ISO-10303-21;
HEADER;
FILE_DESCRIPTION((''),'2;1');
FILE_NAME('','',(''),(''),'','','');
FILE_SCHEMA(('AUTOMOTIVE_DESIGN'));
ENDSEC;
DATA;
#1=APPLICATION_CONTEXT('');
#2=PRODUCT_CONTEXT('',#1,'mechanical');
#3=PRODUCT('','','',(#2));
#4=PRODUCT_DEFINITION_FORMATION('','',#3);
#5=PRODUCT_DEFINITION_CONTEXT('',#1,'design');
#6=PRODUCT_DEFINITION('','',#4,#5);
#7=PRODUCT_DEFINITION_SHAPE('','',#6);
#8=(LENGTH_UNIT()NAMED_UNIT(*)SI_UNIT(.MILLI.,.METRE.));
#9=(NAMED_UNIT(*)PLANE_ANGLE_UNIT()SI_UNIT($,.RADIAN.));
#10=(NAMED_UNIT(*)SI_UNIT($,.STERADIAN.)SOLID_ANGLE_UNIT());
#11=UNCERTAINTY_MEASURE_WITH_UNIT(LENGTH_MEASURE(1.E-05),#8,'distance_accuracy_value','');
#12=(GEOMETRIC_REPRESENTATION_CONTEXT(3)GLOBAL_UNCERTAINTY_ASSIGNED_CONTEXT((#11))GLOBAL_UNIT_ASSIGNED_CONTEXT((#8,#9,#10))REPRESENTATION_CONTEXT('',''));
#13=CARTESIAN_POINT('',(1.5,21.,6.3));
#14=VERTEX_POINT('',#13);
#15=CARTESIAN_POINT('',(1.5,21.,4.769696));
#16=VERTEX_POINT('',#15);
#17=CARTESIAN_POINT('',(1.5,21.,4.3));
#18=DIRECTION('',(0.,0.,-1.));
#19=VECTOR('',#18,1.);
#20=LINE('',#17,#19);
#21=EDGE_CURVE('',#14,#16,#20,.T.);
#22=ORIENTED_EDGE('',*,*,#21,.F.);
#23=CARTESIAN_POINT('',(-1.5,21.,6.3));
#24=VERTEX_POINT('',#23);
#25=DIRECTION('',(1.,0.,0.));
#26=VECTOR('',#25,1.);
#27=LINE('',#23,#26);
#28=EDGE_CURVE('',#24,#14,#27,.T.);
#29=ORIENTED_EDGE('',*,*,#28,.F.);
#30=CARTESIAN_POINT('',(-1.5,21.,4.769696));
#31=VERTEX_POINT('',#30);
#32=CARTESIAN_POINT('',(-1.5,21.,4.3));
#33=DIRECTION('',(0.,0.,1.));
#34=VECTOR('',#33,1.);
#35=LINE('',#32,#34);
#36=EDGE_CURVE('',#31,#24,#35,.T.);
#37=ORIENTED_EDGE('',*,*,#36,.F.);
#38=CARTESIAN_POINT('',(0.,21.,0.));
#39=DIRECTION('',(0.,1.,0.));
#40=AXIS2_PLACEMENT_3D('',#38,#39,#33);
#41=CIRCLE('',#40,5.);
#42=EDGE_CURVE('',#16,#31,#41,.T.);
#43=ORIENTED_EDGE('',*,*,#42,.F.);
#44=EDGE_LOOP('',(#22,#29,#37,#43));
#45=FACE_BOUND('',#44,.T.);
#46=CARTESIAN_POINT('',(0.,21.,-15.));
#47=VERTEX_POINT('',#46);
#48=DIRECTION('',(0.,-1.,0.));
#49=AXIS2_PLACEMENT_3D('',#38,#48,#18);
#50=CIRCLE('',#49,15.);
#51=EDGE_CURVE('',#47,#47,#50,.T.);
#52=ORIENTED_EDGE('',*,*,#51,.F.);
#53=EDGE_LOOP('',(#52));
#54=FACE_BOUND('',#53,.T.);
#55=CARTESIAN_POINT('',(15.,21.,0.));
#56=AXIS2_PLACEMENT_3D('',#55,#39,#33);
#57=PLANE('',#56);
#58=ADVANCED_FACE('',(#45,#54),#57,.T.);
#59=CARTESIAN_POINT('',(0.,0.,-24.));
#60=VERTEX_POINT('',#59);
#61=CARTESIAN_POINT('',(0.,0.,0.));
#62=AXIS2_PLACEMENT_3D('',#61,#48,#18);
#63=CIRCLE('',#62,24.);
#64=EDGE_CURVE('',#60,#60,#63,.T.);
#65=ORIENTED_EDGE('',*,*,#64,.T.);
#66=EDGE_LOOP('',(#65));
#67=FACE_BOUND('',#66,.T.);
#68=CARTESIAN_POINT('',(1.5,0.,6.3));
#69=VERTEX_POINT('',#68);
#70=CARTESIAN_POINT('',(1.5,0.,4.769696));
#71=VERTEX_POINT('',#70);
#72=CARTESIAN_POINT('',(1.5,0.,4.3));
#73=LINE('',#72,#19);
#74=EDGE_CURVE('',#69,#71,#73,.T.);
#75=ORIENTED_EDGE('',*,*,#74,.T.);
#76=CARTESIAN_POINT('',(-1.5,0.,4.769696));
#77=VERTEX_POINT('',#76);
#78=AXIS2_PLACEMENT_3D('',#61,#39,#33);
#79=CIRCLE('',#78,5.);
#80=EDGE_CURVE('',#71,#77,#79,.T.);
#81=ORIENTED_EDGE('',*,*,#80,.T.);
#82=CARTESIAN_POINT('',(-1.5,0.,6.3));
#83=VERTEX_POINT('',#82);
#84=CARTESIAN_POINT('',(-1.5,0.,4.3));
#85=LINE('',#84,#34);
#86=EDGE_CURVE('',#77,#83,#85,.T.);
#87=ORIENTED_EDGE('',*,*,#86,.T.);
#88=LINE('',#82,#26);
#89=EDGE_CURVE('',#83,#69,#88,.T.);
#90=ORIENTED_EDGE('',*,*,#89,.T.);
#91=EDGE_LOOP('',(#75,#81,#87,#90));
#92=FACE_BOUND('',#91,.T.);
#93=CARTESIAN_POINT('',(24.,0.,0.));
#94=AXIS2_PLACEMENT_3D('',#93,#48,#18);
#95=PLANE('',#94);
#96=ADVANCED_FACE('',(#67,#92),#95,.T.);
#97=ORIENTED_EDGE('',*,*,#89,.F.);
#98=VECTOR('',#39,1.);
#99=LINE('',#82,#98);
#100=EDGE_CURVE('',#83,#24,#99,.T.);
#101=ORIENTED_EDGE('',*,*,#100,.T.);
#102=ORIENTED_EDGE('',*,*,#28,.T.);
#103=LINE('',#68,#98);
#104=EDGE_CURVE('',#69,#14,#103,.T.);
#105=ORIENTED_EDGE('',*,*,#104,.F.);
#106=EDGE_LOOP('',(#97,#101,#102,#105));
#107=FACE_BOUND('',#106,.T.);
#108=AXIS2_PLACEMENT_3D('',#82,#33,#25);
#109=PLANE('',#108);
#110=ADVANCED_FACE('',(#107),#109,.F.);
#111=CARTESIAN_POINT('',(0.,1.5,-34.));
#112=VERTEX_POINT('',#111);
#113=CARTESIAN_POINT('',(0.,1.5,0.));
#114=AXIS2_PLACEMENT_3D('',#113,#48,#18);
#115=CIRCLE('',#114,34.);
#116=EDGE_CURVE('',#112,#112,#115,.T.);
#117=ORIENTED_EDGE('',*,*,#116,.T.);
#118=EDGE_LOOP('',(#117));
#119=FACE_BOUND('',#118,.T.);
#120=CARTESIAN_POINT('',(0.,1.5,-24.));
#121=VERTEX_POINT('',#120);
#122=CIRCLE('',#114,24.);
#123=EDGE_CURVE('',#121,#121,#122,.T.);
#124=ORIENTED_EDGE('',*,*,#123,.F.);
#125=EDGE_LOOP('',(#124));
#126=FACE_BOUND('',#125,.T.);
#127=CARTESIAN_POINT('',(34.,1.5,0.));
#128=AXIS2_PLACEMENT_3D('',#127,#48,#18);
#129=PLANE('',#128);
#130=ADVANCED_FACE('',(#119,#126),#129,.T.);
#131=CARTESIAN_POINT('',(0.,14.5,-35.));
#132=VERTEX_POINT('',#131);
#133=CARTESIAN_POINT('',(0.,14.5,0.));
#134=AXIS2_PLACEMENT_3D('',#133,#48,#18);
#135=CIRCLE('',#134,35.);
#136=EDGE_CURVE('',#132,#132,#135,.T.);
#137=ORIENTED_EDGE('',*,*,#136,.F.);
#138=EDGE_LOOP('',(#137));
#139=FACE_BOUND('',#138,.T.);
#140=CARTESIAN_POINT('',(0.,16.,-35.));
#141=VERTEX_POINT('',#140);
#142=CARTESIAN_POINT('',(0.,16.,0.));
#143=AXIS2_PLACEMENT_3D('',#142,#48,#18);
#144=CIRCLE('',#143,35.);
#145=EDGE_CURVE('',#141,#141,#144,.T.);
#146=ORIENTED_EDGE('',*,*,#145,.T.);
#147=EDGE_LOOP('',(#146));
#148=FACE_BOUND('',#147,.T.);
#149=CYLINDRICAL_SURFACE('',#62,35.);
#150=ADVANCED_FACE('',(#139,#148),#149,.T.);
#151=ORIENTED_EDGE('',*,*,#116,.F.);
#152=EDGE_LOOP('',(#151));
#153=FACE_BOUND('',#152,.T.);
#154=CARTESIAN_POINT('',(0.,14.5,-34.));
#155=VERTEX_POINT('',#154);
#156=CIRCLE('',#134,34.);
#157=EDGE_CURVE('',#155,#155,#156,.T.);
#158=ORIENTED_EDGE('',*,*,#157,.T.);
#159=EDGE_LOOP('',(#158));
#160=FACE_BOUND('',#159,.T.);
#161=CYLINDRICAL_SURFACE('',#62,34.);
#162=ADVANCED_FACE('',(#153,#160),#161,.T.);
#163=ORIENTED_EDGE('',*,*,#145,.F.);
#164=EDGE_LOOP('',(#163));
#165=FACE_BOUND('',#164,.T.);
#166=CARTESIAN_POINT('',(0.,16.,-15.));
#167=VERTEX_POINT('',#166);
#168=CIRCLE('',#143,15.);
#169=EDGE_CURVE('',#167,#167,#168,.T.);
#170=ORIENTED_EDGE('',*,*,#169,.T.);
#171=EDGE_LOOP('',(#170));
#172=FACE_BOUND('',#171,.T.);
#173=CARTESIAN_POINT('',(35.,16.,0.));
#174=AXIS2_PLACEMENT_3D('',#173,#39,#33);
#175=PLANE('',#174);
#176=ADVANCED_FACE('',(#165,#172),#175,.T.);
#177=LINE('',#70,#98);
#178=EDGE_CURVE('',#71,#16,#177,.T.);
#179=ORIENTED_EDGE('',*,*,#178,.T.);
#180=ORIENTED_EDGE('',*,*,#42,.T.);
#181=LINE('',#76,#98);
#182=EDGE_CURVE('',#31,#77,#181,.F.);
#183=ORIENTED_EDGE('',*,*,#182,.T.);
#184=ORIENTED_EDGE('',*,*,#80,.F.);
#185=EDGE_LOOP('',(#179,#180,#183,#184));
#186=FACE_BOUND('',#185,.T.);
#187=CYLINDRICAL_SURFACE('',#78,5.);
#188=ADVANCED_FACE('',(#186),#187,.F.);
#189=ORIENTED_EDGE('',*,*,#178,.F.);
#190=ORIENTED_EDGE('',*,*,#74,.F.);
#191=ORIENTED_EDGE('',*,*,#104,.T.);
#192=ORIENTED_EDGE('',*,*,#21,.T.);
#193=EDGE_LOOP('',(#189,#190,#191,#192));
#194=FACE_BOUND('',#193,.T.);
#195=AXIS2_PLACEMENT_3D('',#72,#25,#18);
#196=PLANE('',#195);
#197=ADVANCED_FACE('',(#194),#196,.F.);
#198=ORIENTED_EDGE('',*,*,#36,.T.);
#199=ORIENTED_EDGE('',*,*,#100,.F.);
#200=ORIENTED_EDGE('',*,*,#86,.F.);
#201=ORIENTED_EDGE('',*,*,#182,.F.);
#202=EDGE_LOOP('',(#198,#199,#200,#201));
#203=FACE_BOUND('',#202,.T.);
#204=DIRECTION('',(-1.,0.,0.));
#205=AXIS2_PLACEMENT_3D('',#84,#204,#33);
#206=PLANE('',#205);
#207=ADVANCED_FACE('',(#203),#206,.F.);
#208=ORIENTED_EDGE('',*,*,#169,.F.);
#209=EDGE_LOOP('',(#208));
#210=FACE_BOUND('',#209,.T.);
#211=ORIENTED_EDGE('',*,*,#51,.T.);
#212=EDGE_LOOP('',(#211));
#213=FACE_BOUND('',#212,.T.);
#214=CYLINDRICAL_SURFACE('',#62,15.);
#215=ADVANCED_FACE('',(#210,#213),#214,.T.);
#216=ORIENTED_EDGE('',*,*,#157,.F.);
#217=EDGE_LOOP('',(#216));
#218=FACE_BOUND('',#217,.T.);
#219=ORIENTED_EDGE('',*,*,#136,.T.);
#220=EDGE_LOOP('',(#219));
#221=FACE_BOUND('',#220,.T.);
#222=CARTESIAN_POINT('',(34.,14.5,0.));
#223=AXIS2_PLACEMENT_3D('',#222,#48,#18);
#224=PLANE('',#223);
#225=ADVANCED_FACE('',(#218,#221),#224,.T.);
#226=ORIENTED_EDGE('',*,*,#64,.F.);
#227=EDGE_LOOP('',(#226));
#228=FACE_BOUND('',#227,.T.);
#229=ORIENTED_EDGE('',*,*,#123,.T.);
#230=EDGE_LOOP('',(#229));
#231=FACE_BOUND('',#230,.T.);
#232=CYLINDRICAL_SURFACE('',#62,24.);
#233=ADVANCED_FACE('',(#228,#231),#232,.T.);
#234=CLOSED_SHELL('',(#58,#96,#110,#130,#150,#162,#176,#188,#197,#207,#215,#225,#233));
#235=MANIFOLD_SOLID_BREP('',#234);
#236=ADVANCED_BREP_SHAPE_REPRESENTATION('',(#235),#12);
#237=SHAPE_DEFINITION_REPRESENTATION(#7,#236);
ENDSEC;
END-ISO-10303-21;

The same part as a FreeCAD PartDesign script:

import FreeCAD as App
import Part
import Sketcher

doc = App.newDocument("Part")
body = doc.addObject("PartDesign::Body", "Body")

# Sketch on XY plane
sketch1 = body.newObject("Sketcher::SketchObject", "Sketch")
sketch1.AttachmentSupport = (doc.getObject("XY_Plane"), [""])
sketch1.MapMode = "FlatFace"
sketch1.addGeometry(Part.LineSegment(App.Vector(34, 1.5, 0), App.Vector(34, 14.5, 0)), False)
sketch1.addGeometry(Part.LineSegment(App.Vector(34, 14.5, 0), App.Vector(35, 14.5, 0)), False)
sketch1.addGeometry(Part.LineSegment(App.Vector(35, 14.5, 0), App.Vector(35, 16, 0)), False)
sketch1.addGeometry(Part.LineSegment(App.Vector(35, 16, 0), App.Vector(15, 16, 0)), False)
sketch1.addGeometry(Part.LineSegment(App.Vector(15, 16, 0), App.Vector(15, 21, 0)), False)
sketch1.addGeometry(Part.LineSegment(App.Vector(15, 21, 0), App.Vector(0, 21, 0)), False)
sketch1.addGeometry(Part.LineSegment(App.Vector(0, 21, 0), App.Vector(0, 0, 0)), False)
sketch1.addGeometry(Part.LineSegment(App.Vector(0, 0, 0), App.Vector(24, 0, 0)), False)
sketch1.addGeometry(Part.LineSegment(App.Vector(24, 0, 0), App.Vector(24, 1.5, 0)), False)
sketch1.addGeometry(Part.LineSegment(App.Vector(24, 1.5, 0), App.Vector(34, 1.5, 0)), False)
sketch1.addConstraint(Sketcher.Constraint("Coincident", 0, 2, 1, 1))
sketch1.addConstraint(Sketcher.Constraint("Coincident", 1, 2, 2, 1))
sketch1.addConstraint(Sketcher.Constraint("Coincident", 2, 2, 3, 1))
sketch1.addConstraint(Sketcher.Constraint("Coincident", 3, 2, 4, 1))
sketch1.addConstraint(Sketcher.Constraint("Coincident", 4, 2, 5, 1))
sketch1.addConstraint(Sketcher.Constraint("Coincident", 5, 2, 6, 1))
sketch1.addConstraint(Sketcher.Constraint("Coincident", 6, 2, 7, 1))
sketch1.addConstraint(Sketcher.Constraint("Coincident", 7, 2, 8, 1))
sketch1.addConstraint(Sketcher.Constraint("Coincident", 8, 2, 9, 1))
sketch1.addConstraint(Sketcher.Constraint("Coincident", 9, 2, 0, 1))
sketch1.addConstraint(Sketcher.Constraint("Vertical", 0))
sketch1.addConstraint(Sketcher.Constraint("Horizontal", 1))
sketch1.addConstraint(Sketcher.Constraint("Vertical", 2))
sketch1.addConstraint(Sketcher.Constraint("Horizontal", 3))
sketch1.addConstraint(Sketcher.Constraint("Vertical", 4))
sketch1.addConstraint(Sketcher.Constraint("Horizontal", 5))
sketch1.addConstraint(Sketcher.Constraint("Vertical", 6))
sketch1.addConstraint(Sketcher.Constraint("Horizontal", 7))
sketch1.addConstraint(Sketcher.Constraint("Vertical", 8))
sketch1.addConstraint(Sketcher.Constraint("Horizontal", 9))
sketch1.addConstraint(Sketcher.Constraint("Coincident", 6, 2, -1, 1))
sketch1.addConstraint(Sketcher.Constraint("Equal", 2, 8))
sketch1.addConstraint(Sketcher.Constraint("DistanceX", 1, 1, 1, 2, 1.0))
sketch1.addConstraint(Sketcher.Constraint("DistanceX", 3, 2, 3, 1, 20.0))
sketch1.addConstraint(Sketcher.Constraint("DistanceX", 5, 2, 5, 1, 15.0))
sketch1.addConstraint(Sketcher.Constraint("DistanceX", 7, 1, 7, 2, 24.0))
sketch1.addConstraint(Sketcher.Constraint("DistanceY", 0, 1, 0, 2, 13.0))
sketch1.addConstraint(Sketcher.Constraint("DistanceY", 4, 1, 4, 2, 5.0))
sketch1.addConstraint(Sketcher.Constraint("DistanceY", 6, 2, 6, 1, 21.0))
revolution = body.newObject("PartDesign::Revolution", "Revolution")
revolution.Profile = sketch1
revolution.ReferenceAxis = (sketch1, ["V_Axis"])
revolution.Angle = 360

# Sketch on XZ plane
sketch2 = body.newObject("Sketcher::SketchObject", "Sketch001")
sketch2.AttachmentSupport = (doc.getObject("XZ_Plane"), [""])
sketch2.MapMode = "FlatFace"
sketch2.AttachmentOffset = App.Placement(App.Vector(0, 0, -21), App.Rotation())
sketch2.addGeometry(Part.Circle(App.Vector(0, 0, 0), App.Vector(0, 0, 1), 5), False)
sketch2.addConstraint(Sketcher.Constraint("Coincident", 0, 3, -1, 1))
sketch2.addConstraint(Sketcher.Constraint("Diameter", 0, 10.0))
pocket1 = body.newObject("PartDesign::Pocket", "Pocket")
pocket1.Profile = sketch2
pocket1.Type = "ThroughAll"
pocket1.Reversed = True

# Sketch on XZ plane
sketch3 = body.newObject("Sketcher::SketchObject", "Sketch002")
sketch3.AttachmentSupport = (doc.getObject("XZ_Plane"), [""])
sketch3.MapMode = "FlatFace"
sketch3.AttachmentOffset = App.Placement(App.Vector(0, 0, -21), App.Rotation())
sketch3.addGeometry(Part.LineSegment(App.Vector(-1.5, 4.3, 0), App.Vector(-1.5, 6.3, 0)), False)
sketch3.addGeometry(Part.LineSegment(App.Vector(-1.5, 6.3, 0), App.Vector(1.5, 6.3, 0)), False)
sketch3.addGeometry(Part.LineSegment(App.Vector(1.5, 6.3, 0), App.Vector(1.5, 4.3, 0)), False)
sketch3.addGeometry(Part.LineSegment(App.Vector(1.5, 4.3, 0), App.Vector(-1.5, 4.3, 0)), False)
sketch3.addConstraint(Sketcher.Constraint("Coincident", 0, 2, 1, 1))
sketch3.addConstraint(Sketcher.Constraint("Coincident", 1, 2, 2, 1))
sketch3.addConstraint(Sketcher.Constraint("Coincident", 2, 2, 3, 1))
sketch3.addConstraint(Sketcher.Constraint("Coincident", 3, 2, 0, 1))
sketch3.addConstraint(Sketcher.Constraint("Vertical", 0))
sketch3.addConstraint(Sketcher.Constraint("Horizontal", 1))
sketch3.addConstraint(Sketcher.Constraint("Vertical", 2))
sketch3.addConstraint(Sketcher.Constraint("Horizontal", 3))
sketch3.addConstraint(Sketcher.Constraint("DistanceX", 1, 1, 1, 2, 3.0))
sketch3.addConstraint(Sketcher.Constraint("DistanceY", 0, 1, 0, 2, 2.0))
sketch3.addConstraint(Sketcher.Constraint("DistanceX", 0, 2, -1, 1, 1.5))
sketch3.addConstraint(Sketcher.Constraint("DistanceY", -1, 1, 0, 2, 6.3))
pocket2 = body.newObject("PartDesign::Pocket", "Pocket001")
pocket2.Profile = sketch3
pocket2.Type = "ThroughAll"
pocket2.Reversed = True

doc.recompute()
